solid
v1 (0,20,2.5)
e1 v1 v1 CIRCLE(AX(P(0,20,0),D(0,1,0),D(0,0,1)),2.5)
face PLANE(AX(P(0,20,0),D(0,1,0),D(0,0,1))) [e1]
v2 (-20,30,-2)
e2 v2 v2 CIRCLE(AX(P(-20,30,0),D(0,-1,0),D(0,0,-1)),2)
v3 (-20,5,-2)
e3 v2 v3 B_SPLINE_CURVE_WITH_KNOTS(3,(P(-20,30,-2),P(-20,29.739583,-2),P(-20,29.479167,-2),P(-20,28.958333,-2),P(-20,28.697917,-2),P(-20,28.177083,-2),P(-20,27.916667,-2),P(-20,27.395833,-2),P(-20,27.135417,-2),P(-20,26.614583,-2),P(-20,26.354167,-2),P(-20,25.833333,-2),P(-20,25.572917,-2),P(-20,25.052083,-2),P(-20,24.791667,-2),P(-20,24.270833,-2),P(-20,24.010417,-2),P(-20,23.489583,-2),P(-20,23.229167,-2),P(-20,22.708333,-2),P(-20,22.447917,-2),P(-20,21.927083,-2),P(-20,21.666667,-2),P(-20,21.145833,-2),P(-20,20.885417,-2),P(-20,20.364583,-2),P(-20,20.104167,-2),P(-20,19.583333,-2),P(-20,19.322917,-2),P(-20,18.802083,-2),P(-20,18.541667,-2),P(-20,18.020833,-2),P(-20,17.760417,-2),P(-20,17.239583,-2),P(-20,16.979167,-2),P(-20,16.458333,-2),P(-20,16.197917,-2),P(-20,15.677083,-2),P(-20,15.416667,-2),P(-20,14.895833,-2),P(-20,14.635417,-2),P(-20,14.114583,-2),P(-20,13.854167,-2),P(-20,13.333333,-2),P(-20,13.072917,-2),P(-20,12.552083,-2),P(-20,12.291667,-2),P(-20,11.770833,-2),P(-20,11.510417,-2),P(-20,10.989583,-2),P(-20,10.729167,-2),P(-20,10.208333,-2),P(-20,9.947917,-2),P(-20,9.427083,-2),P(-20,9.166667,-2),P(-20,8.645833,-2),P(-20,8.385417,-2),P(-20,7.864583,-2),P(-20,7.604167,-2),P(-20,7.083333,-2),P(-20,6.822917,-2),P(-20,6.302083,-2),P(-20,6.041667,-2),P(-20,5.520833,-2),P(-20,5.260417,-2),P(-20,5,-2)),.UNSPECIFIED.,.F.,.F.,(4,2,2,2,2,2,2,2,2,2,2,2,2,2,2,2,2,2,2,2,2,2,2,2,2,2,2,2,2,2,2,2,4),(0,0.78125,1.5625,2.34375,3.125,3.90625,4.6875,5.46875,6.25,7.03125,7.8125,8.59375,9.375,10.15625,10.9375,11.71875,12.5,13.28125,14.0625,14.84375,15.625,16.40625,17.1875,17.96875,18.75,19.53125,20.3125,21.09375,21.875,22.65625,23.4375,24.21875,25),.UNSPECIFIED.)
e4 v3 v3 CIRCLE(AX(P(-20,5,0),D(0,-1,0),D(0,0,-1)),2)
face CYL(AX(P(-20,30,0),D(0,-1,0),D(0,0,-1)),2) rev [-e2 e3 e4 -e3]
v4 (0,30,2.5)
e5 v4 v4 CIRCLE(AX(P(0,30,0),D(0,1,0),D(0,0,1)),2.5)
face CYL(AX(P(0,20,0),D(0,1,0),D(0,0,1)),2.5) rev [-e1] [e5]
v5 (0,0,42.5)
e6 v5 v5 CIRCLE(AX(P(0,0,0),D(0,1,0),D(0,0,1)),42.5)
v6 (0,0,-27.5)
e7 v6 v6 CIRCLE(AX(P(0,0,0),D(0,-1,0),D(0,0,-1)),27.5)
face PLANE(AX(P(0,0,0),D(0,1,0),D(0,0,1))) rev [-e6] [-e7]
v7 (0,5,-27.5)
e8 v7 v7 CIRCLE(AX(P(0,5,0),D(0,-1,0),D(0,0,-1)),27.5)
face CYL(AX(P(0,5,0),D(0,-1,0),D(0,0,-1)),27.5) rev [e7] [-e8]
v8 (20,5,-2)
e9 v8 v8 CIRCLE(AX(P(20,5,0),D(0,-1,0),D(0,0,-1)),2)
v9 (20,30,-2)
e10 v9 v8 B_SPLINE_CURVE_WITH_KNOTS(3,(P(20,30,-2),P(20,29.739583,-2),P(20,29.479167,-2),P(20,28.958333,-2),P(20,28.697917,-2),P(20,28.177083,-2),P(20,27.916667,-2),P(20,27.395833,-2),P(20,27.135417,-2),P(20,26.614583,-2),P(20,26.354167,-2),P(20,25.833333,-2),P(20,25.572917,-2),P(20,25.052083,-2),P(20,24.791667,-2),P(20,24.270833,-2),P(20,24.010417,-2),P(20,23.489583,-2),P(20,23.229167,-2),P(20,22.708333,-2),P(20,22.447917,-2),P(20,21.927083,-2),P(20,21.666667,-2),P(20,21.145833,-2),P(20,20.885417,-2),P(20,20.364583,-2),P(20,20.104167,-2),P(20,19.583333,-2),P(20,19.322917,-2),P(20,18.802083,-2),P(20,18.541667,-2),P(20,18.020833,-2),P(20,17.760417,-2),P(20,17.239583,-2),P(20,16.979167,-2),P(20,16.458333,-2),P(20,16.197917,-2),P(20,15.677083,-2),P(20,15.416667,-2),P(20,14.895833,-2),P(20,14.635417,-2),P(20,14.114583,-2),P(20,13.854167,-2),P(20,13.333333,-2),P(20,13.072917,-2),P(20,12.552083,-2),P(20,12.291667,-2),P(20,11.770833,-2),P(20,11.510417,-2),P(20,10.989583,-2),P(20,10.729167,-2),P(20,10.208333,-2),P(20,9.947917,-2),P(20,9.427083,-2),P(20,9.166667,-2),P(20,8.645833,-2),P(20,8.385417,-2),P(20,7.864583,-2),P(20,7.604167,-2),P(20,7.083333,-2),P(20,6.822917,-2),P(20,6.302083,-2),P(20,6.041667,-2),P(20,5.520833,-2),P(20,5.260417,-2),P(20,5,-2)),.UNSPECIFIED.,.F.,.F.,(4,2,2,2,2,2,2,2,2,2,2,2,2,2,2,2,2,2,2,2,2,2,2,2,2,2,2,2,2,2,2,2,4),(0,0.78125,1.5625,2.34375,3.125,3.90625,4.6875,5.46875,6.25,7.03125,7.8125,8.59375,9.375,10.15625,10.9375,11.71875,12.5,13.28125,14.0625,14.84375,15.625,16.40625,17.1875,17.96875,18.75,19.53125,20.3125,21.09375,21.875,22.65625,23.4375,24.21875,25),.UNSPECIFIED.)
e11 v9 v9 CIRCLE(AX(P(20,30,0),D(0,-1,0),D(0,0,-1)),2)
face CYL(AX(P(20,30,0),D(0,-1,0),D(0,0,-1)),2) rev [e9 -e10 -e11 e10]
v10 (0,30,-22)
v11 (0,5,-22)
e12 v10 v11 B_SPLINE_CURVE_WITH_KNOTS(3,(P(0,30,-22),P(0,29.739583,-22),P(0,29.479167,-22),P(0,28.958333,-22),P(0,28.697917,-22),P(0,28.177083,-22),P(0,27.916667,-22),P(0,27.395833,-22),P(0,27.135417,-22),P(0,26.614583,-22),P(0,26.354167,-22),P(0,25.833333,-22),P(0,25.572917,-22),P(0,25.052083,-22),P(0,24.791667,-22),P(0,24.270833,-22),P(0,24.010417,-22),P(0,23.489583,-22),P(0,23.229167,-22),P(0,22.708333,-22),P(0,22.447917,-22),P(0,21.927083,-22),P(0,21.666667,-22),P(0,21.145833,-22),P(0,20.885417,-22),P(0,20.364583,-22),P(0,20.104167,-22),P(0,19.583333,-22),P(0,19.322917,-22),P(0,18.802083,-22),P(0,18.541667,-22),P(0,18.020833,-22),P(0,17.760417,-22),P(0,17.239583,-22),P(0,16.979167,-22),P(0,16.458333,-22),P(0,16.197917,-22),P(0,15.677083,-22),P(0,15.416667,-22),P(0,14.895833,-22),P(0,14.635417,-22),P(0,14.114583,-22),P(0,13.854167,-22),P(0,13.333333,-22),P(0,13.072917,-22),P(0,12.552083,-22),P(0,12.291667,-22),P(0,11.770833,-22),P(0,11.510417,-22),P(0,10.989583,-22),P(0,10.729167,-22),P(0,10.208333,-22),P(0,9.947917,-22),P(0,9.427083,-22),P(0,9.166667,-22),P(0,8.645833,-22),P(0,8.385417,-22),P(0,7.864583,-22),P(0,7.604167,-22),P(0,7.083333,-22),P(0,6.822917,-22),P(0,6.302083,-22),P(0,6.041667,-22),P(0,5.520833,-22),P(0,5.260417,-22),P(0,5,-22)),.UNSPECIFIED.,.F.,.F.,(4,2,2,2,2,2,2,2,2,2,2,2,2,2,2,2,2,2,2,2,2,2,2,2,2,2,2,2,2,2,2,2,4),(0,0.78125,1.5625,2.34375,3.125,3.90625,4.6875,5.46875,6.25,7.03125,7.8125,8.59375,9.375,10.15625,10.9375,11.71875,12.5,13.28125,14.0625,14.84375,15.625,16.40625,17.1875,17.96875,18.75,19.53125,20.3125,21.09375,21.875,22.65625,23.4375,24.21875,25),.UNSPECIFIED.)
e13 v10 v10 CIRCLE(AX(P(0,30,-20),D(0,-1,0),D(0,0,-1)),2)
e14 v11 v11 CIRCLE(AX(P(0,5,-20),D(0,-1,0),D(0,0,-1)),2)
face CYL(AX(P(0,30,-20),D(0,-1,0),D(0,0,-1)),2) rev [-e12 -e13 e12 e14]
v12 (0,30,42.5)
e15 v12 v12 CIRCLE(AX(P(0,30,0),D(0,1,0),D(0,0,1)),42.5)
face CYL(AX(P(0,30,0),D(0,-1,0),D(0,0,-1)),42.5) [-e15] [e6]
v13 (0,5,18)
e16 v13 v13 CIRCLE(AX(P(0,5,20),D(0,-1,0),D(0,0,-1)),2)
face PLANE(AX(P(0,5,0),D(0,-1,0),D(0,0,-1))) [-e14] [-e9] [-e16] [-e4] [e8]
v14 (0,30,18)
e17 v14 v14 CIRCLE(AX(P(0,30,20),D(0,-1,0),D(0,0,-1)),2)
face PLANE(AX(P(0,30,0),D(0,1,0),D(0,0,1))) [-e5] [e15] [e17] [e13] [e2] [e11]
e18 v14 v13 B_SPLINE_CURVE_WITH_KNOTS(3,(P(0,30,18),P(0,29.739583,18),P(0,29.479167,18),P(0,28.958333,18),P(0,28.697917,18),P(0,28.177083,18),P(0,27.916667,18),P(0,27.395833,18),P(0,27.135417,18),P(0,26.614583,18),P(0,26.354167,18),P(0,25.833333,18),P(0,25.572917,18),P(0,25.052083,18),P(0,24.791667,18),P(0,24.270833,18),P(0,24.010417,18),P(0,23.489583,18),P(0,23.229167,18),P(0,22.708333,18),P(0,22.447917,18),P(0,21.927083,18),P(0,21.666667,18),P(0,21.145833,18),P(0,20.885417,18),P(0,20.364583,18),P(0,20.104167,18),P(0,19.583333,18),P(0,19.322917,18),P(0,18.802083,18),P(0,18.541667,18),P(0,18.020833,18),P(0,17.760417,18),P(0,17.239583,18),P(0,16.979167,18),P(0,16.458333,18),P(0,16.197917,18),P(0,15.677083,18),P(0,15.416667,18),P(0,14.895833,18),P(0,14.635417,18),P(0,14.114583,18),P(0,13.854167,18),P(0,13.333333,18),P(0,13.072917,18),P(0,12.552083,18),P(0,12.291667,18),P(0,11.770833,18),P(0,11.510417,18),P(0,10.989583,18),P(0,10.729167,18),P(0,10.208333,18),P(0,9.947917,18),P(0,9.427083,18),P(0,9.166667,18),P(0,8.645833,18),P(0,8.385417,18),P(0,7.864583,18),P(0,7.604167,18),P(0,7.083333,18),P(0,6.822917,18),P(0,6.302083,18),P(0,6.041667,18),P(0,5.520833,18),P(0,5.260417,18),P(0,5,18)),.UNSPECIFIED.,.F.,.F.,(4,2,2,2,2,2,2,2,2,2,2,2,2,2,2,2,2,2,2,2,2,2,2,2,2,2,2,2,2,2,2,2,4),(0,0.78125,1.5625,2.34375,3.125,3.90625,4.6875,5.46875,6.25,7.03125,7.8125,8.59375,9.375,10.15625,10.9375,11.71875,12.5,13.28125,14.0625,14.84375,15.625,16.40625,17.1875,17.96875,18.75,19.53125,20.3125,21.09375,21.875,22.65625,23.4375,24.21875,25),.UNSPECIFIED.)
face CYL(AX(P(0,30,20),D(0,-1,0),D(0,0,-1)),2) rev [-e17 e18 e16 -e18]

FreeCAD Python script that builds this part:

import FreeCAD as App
import Part
import Sketcher
from FreeCAD import Vector

doc = App.newDocument("Part")
params = doc.addObject("Spreadsheet::Sheet", "Params")
for row, (alias, value) in enumerate([
    ("sketch1_diameter", "85 mm"),
    ("pad1_length", "30 mm"),
    ("sketch2_diameter", "5 mm"),
    ("pocket1_length", "10 mm"),
    ("sketch3_diameter", "55 mm"),
    ("pocket2_length", "5 mm"),
    ("sketch4_diameter", "4 mm"),
], start=1):
    params.set(f"A{row}", alias)
    params.set(f"B{row}", "=" + value)
    params.setAlias(f"B{row}", alias)

body = doc.addObject("PartDesign::Body", "Body")

# Sketch on XZ plane
sketch1 = body.newObject("Sketcher::SketchObject", "Sketch")
sketch1.AttachmentSupport = (doc.getObject("XZ_Plane"), [""])
sketch1.MapMode = "FlatFace"
sketch1.addGeometry(Part.Circle(Vector(0, 0, 0), Vector(0, 0, 1), 42), False)
sketch1.addConstraint(Sketcher.Constraint("Coincident", 0, 3, -1, 1))
sketch1.addConstraint(Sketcher.Constraint("Diameter", 0, 85.0))
sketch1.setExpression("Constraints[1]", "Params.sketch1_diameter")
pad1 = body.newObject("PartDesign::Pad", "Pad")
pad1.Profile = sketch1
pad1.setExpression("Length", "Params.pad1_length")
pad1.Reversed = True

# Sketch on XZ plane
sketch2 = body.newObject("Sketcher::SketchObject", "Sketch001")
sketch2.AttachmentSupport = (doc.getObject("XZ_Plane"), [""])
sketch2.MapMode = "FlatFace"
sketch2.AttachmentOffset = App.Placement(Vector(0, 0, -30), App.Rotation())
sketch2.addGeometry(Part.Circle(Vector(0, 0, 0), Vector(0, 0, 1), 2.5), False)
sketch2.addConstraint(Sketcher.Constraint("Coincident", 0, 3, -1, 1))
sketch2.addConstraint(Sketcher.Constraint("Diameter", 0, 5.0))
sketch2.setExpression("Constraints[1]", "Params.sketch2_diameter")
pocket1 = body.newObject("PartDesign::Pocket", "Pocket")
pocket1.Profile = sketch2
pocket1.setExpression("Length", "Params.pocket1_length")
pocket1.Reversed = True

# Sketch on XZ plane
sketch3 = body.newObject("Sketcher::SketchObject", "Sketch002")
sketch3.AttachmentSupport = (doc.getObject("XZ_Plane"), [""])
sketch3.MapMode = "FlatFace"
sketch3.addGeometry(Part.Circle(Vector(0, 0, 0), Vector(0, 0, 1), 28), False)
sketch3.addConstraint(Sketcher.Constraint("Coincident", 0, 3, -1, 1))
sketch3.addConstraint(Sketcher.Constraint("Diameter", 0, 55.0))
sketch3.setExpression("Constraints[1]", "Params.sketch3_diameter")
pocket2 = body.newObject("PartDesign::Pocket", "Pocket001")
pocket2.Profile = sketch3
pocket2.setExpression("Length", "Params.pocket2_length")

# Sketch on XZ plane
sketch4 = body.newObject("Sketcher::SketchObject", "Sketch003")
sketch4.AttachmentSupport = (doc.getObject("XZ_Plane"), [""])
sketch4.MapMode = "FlatFace"
sketch4.AttachmentOffset = App.Placement(Vector(0, 0, -5), App.Rotation())
sketch4.addGeometry(Part.Circle(Vector(0, 20, 0), Vector(0, 0, 1), 2), False)
sketch4.addGeometry(Part.Circle(Vector(-20, 0, 0), Vector(0, 0, 1), 2), False)
sketch4.addGeometry(Part.Circle(Vector(0, -20, 0), Vector(0, 0, 1), 2), False)
sketch4.addGeometry(Part.Circle(Vector(20, 0, 0), Vector(0, 0, 1), 2), False)
sketch4.addConstraint(Sketcher.Constraint("Equal", 0, 1))
sketch4.addConstraint(Sketcher.Constraint("Equal", 1, 2))
sketch4.addConstraint(Sketcher.Constraint("Equal", 2, 3))
sketch4.addConstraint(Sketcher.Constraint("Symmetric", 0, 3, 2, 3, -1, 1))
sketch4.addConstraint(Sketcher.Constraint("Symmetric", 1, 3, 3, 3, -1, 1))
sketch4.addConstraint(Sketcher.Constraint("PointOnObject", 0, 3, -2))
sketch4.addConstraint(Sketcher.Constraint("PointOnObject", 1, 3, -1))
sketch4.addConstraint(Sketcher.Constraint("Diameter", 0, 4.0))
sketch4.addConstraint(Sketcher.Constraint("DistanceY", -1, 1, 0, 3, 20.0))
sketch4.addConstraint(Sketcher.Constraint("DistanceX", 1, 3, -1, 1, 20.0))
sketch4.setExpression("Constraints[7]", "Params.sketch4_diameter")
pocket3 = body.newObject("PartDesign::Pocket", "Pocket002")
pocket3.Profile = sketch4
pocket3.Type = "ThroughAll"

doc.recompute()
